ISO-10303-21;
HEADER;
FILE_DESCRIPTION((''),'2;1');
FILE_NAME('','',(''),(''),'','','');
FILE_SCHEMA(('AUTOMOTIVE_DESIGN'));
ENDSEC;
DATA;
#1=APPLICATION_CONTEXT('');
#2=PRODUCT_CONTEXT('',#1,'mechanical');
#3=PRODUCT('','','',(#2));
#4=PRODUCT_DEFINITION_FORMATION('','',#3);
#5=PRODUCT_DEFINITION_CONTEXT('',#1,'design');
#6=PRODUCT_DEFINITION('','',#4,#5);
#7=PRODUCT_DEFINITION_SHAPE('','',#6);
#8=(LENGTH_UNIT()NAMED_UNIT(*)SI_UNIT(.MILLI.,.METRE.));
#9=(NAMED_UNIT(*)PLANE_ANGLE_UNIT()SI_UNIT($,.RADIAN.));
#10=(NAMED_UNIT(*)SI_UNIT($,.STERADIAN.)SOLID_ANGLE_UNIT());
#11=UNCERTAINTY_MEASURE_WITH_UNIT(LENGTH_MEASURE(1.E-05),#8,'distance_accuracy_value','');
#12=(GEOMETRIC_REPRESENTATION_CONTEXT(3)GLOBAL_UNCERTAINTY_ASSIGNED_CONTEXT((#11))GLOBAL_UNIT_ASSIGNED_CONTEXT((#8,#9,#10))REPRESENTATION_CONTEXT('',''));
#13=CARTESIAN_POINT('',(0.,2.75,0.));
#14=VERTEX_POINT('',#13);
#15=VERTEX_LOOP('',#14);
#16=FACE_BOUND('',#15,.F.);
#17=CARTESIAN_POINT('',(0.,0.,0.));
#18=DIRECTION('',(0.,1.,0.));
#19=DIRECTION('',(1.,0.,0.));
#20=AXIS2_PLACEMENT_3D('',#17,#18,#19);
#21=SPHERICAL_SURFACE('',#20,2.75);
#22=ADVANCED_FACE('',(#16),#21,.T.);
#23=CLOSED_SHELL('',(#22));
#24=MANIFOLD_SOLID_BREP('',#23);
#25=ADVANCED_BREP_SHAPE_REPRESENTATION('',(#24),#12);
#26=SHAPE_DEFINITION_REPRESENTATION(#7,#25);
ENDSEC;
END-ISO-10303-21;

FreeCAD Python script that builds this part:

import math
import FreeCAD as App
import Part
import Sketcher
from FreeCAD import Vector

doc = App.newDocument("Part")
body = doc.addObject("PartDesign::Body", "Body")

sketch1 = body.newObject("Sketcher::SketchObject", "Sketch")
sketch1.AttachmentSupport = (doc.getObject("XY_Plane"), [""])
sketch1.MapMode = "FlatFace"
sketch1.addGeometry([
    Part.LineSegment(Vector(0, 2.8, 0), Vector(0, -2.8, 0)),
    Part.ArcOfCircle(Part.Circle(Vector(0, 0, 0), Vector(0, 0, 1), 2.8), math.radians(-90), math.radians(90)),
], False)
sketch1.addConstraint([
    Sketcher.Constraint("Coincident", 0, 1, 1, 2),
    Sketcher.Constraint("Coincident", 1, 1, 0, 2),
    Sketcher.Constraint("Vertical", 0),
    Sketcher.Constraint("Coincident", 1, 3, -1, 1),
    Sketcher.Constraint("PointOnObject", 0, 1, -2),
    Sketcher.Constraint("Radius", 1, 2.75),
])
revolution = body.newObject("PartDesign::Revolution", "Revolution")
revolution.Profile = sketch1
revolution.ReferenceAxis = (sketch1, ["V_Axis"])
revolution.Angle = 360

doc.recompute()
